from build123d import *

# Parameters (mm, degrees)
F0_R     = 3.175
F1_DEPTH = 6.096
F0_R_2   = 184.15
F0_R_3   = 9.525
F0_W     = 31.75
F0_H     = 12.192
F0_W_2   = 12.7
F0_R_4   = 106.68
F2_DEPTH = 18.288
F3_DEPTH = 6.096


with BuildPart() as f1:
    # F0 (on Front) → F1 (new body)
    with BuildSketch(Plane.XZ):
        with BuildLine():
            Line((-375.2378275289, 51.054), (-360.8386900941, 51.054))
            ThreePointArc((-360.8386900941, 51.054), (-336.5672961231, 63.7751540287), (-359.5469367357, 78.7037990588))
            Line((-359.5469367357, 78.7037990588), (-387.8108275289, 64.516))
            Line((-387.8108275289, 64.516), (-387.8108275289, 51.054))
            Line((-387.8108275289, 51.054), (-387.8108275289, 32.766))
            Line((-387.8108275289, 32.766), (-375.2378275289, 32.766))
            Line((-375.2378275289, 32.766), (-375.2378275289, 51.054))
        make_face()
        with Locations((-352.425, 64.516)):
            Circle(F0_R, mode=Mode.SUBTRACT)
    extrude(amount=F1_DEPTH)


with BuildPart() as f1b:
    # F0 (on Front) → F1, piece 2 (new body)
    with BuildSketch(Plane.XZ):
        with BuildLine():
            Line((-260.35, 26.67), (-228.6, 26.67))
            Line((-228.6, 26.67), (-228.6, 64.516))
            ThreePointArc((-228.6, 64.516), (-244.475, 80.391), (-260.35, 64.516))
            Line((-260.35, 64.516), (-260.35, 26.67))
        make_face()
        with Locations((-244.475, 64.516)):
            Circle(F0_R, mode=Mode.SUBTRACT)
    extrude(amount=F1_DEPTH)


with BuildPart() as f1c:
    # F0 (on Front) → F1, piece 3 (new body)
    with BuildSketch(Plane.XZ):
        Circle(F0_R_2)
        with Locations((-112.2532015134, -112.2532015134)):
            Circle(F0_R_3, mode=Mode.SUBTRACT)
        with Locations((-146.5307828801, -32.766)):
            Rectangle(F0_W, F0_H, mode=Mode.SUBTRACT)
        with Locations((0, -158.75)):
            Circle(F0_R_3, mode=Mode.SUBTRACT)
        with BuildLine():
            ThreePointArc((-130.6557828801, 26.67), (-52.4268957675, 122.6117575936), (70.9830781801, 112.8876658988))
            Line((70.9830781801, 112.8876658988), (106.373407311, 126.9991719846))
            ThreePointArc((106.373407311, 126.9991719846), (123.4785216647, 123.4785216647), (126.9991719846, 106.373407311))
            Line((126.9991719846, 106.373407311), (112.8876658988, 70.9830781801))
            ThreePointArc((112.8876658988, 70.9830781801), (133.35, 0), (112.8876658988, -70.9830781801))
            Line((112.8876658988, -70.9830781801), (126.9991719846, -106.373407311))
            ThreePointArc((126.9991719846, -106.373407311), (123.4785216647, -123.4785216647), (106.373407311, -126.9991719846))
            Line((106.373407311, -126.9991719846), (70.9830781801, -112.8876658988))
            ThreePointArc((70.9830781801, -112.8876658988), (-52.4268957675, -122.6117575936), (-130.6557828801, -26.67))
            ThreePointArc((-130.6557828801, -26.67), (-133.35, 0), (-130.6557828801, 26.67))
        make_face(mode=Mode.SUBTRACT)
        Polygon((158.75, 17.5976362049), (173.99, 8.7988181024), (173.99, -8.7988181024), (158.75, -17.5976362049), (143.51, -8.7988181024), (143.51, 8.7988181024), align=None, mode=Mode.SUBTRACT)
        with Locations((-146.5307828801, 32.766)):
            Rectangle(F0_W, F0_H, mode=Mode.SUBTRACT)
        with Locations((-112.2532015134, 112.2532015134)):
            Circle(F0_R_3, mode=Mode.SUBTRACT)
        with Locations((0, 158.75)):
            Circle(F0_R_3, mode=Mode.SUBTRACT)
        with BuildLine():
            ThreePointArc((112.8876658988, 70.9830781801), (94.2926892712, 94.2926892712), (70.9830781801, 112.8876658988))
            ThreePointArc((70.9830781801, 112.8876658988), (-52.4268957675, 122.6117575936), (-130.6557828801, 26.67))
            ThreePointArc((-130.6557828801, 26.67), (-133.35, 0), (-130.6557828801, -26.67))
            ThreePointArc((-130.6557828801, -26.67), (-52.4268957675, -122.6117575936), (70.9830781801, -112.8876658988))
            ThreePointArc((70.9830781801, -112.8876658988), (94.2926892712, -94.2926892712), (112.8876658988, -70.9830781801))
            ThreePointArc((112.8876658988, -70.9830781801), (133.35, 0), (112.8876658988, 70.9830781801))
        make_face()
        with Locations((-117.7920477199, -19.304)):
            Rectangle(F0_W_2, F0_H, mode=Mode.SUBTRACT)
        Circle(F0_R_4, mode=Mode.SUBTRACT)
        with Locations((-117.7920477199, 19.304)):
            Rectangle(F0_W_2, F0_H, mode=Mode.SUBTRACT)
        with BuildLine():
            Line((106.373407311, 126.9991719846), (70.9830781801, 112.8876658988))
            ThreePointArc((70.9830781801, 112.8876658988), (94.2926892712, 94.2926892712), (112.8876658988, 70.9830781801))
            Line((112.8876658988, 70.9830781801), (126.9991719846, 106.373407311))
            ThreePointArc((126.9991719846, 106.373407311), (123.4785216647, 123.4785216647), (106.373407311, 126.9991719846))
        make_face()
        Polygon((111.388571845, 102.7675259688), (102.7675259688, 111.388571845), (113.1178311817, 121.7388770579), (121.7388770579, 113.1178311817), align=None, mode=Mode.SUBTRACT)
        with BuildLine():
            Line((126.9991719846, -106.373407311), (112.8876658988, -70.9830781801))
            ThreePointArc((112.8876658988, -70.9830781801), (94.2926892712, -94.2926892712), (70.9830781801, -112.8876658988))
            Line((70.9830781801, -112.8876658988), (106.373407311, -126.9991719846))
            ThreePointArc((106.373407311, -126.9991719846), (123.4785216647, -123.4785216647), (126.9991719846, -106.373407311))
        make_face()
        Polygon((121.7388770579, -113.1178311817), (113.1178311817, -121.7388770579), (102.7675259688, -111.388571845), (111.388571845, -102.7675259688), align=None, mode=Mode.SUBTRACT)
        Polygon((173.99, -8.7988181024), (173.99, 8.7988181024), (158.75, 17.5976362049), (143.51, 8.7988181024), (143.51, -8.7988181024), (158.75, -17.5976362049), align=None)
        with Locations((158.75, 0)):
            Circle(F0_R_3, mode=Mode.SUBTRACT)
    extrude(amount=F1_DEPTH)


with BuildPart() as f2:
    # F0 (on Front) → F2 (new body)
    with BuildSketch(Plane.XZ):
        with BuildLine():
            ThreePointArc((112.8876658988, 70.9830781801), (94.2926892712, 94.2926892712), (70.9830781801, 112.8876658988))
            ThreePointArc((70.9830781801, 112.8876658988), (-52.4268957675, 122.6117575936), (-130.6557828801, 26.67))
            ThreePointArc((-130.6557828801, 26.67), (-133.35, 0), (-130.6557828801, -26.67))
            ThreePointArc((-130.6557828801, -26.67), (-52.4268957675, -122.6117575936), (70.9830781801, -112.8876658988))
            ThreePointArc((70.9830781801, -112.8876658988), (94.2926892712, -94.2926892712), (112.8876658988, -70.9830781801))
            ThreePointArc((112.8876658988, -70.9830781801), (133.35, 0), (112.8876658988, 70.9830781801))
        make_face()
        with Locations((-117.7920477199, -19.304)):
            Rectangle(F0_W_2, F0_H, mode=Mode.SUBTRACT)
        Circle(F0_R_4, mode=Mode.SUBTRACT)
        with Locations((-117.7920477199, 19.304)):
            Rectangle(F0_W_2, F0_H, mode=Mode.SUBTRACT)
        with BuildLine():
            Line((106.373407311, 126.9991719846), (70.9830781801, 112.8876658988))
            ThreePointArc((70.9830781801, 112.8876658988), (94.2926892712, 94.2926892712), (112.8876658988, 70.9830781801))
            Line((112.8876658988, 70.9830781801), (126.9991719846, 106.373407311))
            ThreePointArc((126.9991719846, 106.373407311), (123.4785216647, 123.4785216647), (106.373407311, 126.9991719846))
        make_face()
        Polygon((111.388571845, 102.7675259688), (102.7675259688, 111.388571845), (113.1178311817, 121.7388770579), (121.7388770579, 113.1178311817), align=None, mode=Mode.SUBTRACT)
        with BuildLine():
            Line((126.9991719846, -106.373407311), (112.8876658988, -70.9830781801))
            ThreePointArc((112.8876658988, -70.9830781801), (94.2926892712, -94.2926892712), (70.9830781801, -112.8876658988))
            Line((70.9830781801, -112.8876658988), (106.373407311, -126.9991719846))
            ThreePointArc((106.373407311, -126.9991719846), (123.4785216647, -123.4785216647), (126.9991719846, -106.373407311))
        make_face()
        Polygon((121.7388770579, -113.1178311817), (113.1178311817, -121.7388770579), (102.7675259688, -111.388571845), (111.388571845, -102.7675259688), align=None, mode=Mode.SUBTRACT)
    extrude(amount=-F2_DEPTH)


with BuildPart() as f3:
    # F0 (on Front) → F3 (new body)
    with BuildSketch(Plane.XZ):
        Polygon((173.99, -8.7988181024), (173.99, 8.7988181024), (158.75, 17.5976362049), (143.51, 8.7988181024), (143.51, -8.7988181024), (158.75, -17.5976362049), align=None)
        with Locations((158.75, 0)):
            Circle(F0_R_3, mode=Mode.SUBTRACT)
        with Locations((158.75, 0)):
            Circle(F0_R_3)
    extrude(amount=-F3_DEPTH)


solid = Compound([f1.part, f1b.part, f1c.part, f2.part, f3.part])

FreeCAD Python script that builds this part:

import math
import FreeCAD as App
import Part
import Sketcher
from FreeCAD import Vector
Q = App.Units.Quantity


def add_polygon(sketch, points):
    """Adds a closed chain of lines whose ends are joined by coincident constraints."""
    first, n = sketch.GeometryCount, len(points)
    for a, b in zip(points, points[1:] + points[:1]):
        sketch.addGeometry(Part.LineSegment(App.Vector(*a, 0), App.Vector(*b, 0)), False)
    for i in range(n):
        sketch.addConstraint(Sketcher.Constraint("Coincident", first + i, 2, first + (i + 1) % n, 1))

doc = App.newDocument("Part")
body = doc.addObject("PartDesign::Body", "Body")

# Sketch on XZ plane
sketch1 = body.newObject("Sketcher::SketchObject", "Sketch")
sketch1.AttachmentSupport = (doc.getObject("XZ_Plane"), [""])
sketch1.MapMode = "FlatFace"
sketch1.addGeometry(Part.LineSegment(Vector(-375.237828, 51.054, 0), Vector(-360.83869, 51.054, 0)), False)
sketch1.addGeometry(Part.ArcOfCircle(Part.Circle(Vector(-352.425, 64.516, 0), Vector(0, 0, 1), 15.875), math.radians(-122.0052), math.radians(116.65556)), False)
sketch1.addGeometry(Part.LineSegment(Vector(-359.546937, 78.703799, 0), Vector(-387.810828, 64.516, 0)), False)
sketch1.addGeometry(Part.LineSegment(Vector(-387.810828, 64.516, 0), Vector(-387.810828, 32.766, 0)), False)
sketch1.addGeometry(Part.LineSegment(Vector(-387.810828, 32.766, 0), Vector(-375.237828, 32.766, 0)), False)
sketch1.addGeometry(Part.LineSegment(Vector(-375.237828, 32.766, 0), Vector(-375.237828, 51.054, 0)), False)
sketch1.addGeometry(Part.Circle(Vector(-352.425, 64.516, 0), Vector(0, 0, 1), 3.175), False)
sketch1.addConstraint(Sketcher.Constraint("Coincident", 0, 2, 1, 1))
sketch1.addConstraint(Sketcher.Constraint("Tangent", 1, 2, 2, 1))
sketch1.addConstraint(Sketcher.Constraint("Coincident", 2, 2, 3, 1))
sketch1.addConstraint(Sketcher.Constraint("Coincident", 3, 2, 4, 1))
sketch1.addConstraint(Sketcher.Constraint("Coincident", 4, 2, 5, 1))
sketch1.addConstraint(Sketcher.Constraint("Coincident", 5, 2, 0, 1))
sketch1.addConstraint(Sketcher.Constraint("Horizontal", 0))
sketch1.addConstraint(Sketcher.Constraint("Vertical", 3))
sketch1.addConstraint(Sketcher.Constraint("Horizontal", 4))
sketch1.addConstraint(Sketcher.Constraint("Vertical", 5))
sketch1.addConstraint(Sketcher.Constraint("Coincident", 6, 3, 1, 3))
sketch1.addConstraint(Sketcher.Constraint("Horizontal", 6, 3, 2, 2))
sketch1.addConstraint(Sketcher.Constraint("Diameter", 6, Q("0.25 in")))
sketch1.addConstraint(Sketcher.Constraint("Radius", 1, Q("0.625 in")))
sketch1.addConstraint(Sketcher.Constraint("DistanceY", 3, 2, 3, 1, Q("1.25 in")))
sketch1.addConstraint(Sketcher.Constraint("DistanceY", 5, 1, 5, 2, Q("0.72 in")))
sketch1.addConstraint(Sketcher.Constraint("DistanceX", 4, 1, 4, 2, Q("0.495 in")))
sketch1.addConstraint(Sketcher.Constraint("DistanceY", -1, 1, 1, 3, Q("2.54 in")))
sketch1.addConstraint(Sketcher.Constraint("DistanceX", 1, 3, -1, 1, Q("13.875 in")))
sketch1.addConstraint(Sketcher.Constraint("DistanceY", -1, 1, 1, 2, Q("78.703799 mm")))
pad1 = body.newObject("PartDesign::Pad", "Pad")
pad1.Profile = sketch1
pad1.Length = Q("0.24 in")
body2 = doc.addObject("PartDesign::Body", "Body001")

# Sketch on XZ plane
sketch2 = body2.newObject("Sketcher::SketchObject", "Sketch001")
sketch2.AttachmentSupport = (doc.getObject("XZ_Plane001"), [""])
sketch2.MapMode = "FlatFace"
sketch2.addGeometry(Part.LineSegment(Vector(-260.35, 26.67, 0), Vector(-228.6, 26.67, 0)), False)
sketch2.addGeometry(Part.LineSegment(Vector(-228.6, 26.67, 0), Vector(-228.6, 64.516, 0)), False)
sketch2.addGeometry(Part.ArcOfCircle(Part.Circle(Vector(-244.475, 64.516, 0), Vector(0, 0, 1), 15.875), math.radians(0), math.radians(180)), False)
sketch2.addGeometry(Part.LineSegment(Vector(-260.35, 64.516, 0), Vector(-260.35, 26.67, 0)), False)
sketch2.addGeometry(Part.Circle(Vector(-244.475, 64.516, 0), Vector(0, 0, 1), 3.175), False)
sketch2.addConstraint(Sketcher.Constraint("Coincident", 0, 2, 1, 1))
sketch2.addConstraint(Sketcher.Constraint("Tangent", 1, 2, 2, 1))
sketch2.addConstraint(Sketcher.Constraint("Tangent", 2, 2, 3, 1))
sketch2.addConstraint(Sketcher.Constraint("Coincident", 3, 2, 0, 1))
sketch2.addConstraint(Sketcher.Constraint("Horizontal", 0))
sketch2.addConstraint(Sketcher.Constraint("Vertical", 1))
sketch2.addConstraint(Sketcher.Constraint("Vertical", 3))
sketch2.addConstraint(Sketcher.Constraint("Coincident", 4, 3, 2, 3))
sketch2.addConstraint(Sketcher.Constraint("Diameter", 4, Q("0.25 in")))
sketch2.addConstraint(Sketcher.Constraint("DistanceX", 0, 2, -1, 1, Q("9 in")))
sketch2.addConstraint(Sketcher.Constraint("Radius", 2, Q("0.625 in")))
sketch2.addConstraint(Sketcher.Constraint("DistanceY", 1, 1, 1, 2, Q("1.49 in")))
sketch2.addConstraint(Sketcher.Constraint("DistanceY", -1, 1, 2, 3, Q("2.54 in")))
pad2 = body2.newObject("PartDesign::Pad", "Pad001")
pad2.Profile = sketch2
pad2.Length = Q("0.24 in")
body3 = doc.addObject("PartDesign::Body", "Body002")

# Sketch on XZ plane
sketch3 = body3.newObject("Sketcher::SketchObject", "Sketch002")
sketch3.AttachmentSupport = (doc.getObject("XZ_Plane002"), [""])
sketch3.MapMode = "FlatFace"
sketch3.addGeometry(Part.Circle(Vector(0, 0, 0), Vector(0, 0, 1), 184.15), False)  # 0
sketch3.addGeometry(Part.Circle(Vector(-112.253202, -112.253202, 0), Vector(0, 0, 1), 9.525), False)  # 1
sketch3.addGeometry(Part.Circle(Vector(0, -158.75, 0), Vector(0, 0, 1), 9.525), False)  # 2
add_polygon(sketch3, [(-130.655783, -38.862), (-162.405783, -38.862), (-162.405783, -26.67), (-130.655783, -26.67)])  # lines 3-6
add_polygon(sketch3, [(-111.442048, -25.4), (-124.142048, -25.4), (-124.142048, -13.208), (-111.442048, -13.208)])  # lines 7-10
sketch3.addGeometry(Part.Circle(Vector(0, 0, 0), Vector(0, 0, 1), 106.68), False)  # 11
add_polygon(sketch3, [(111.388572, -102.767526), (121.738877, -113.117831), (113.117831, -121.738877), (102.767526, -111.388572)])  # lines 12-15
add_polygon(sketch3, [(-130.655783, 38.862), (-130.655783, 26.67), (-162.405783, 26.67), (-162.405783, 38.862)])  # lines 16-19
add_polygon(sketch3, [(-111.442048, 13.208), (-124.142048, 13.208), (-124.142048, 25.4), (-111.442048, 25.4)])  # lines 20-23
sketch3.addGeometry(Part.Circle(Vector(-112.253202, 112.253202, 0), Vector(0, 0, 1), 9.525), False)  # 24
sketch3.addGeometry(Part.Circle(Vector(0, 158.75, 0), Vector(0, 0, 1), 9.525), False)  # 25
sketch3.addGeometry(Part.Circle(Vector(158.75, 0, 0), Vector(0, 0, 1), 9.525), False)  # 26
add_polygon(sketch3, [(121.738877, 113.117831), (111.388572, 102.767526), (102.767526, 111.388572), (113.117831, 121.738877)])  # lines 27-30
sketch3.addConstraint(Sketcher.Constraint("Horizontal", 3))
sketch3.addConstraint(Sketcher.Constraint("Vertical", 4))
sketch3.addConstraint(Sketcher.Constraint("Horizontal", 5))
sketch3.addConstraint(Sketcher.Constraint("Vertical", 6))
sketch3.addConstraint(Sketcher.Constraint("Horizontal", 7))
sketch3.addConstraint(Sketcher.Constraint("Vertical", 8))
sketch3.addConstraint(Sketcher.Constraint("Horizontal", 9))
sketch3.addConstraint(Sketcher.Constraint("Vertical", 10))
sketch3.addConstraint(Sketcher.Constraint("Vertical", 16))
sketch3.addConstraint(Sketcher.Constraint("Horizontal", 17))
sketch3.addConstraint(Sketcher.Constraint("Vertical", 18))
sketch3.addConstraint(Sketcher.Constraint("Horizontal", 19))
sketch3.addConstraint(Sketcher.Constraint("Horizontal", 20))
sketch3.addConstraint(Sketcher.Constraint("Vertical", 21))
sketch3.addConstraint(Sketcher.Constraint("Horizontal", 22))
sketch3.addConstraint(Sketcher.Constraint("Vertical", 23))
sketch3.addConstraint(Sketcher.Constraint("Coincident", 0, 3, -1, 1))
sketch3.addConstraint(Sketcher.Constraint("Coincident", 11, 3, -1, 1))
sketch3.addConstraint(Sketcher.Constraint("Equal", 1, 2))
sketch3.addConstraint(Sketcher.Constraint("Equal", 2, 24))
sketch3.addConstraint(Sketcher.Constraint("Equal", 24, 25))
sketch3.addConstraint(Sketcher.Constraint("Equal", 25, 26))
sketch3.addConstraint(Sketcher.Constraint("Symmetric", 2, 3, 25, 3, -1, 1))
sketch3.addConstraint(Sketcher.Constraint("Symmetric", 1, 3, 24, 3, -1))
sketch3.addConstraint(Sketcher.Constraint("Symmetric", 5, 2, 16, 2, -1))
sketch3.addConstraint(Sketcher.Constraint("Symmetric", 3, 2, 18, 2, -1))
sketch3.addConstraint(Sketcher.Constraint("Symmetric", 8, 2, 20, 2, -1))
sketch3.addConstraint(Sketcher.Constraint("Symmetric", 10, 2, 22, 2, -1))
sketch3.addConstraint(Sketcher.Constraint("Symmetric", 15, 2, 27, 2, -1))
sketch3.addConstraint(Sketcher.Constraint("Symmetric", 14, 2, 28, 2, -1))
sketch3.addConstraint(Sketcher.Constraint("Symmetric", 13, 2, 29, 2, -1))
sketch3.addConstraint(Sketcher.Constraint("Symmetric", 12, 2, 30, 2, -1))
sketch3.addConstraint(Sketcher.Constraint("PointOnObject", 2, 3, -2))
sketch3.addConstraint(Sketcher.Constraint("PointOnObject", 26, 3, -1))
sketch3.addConstraint(Sketcher.Constraint("Perpendicular", 12, 13))
sketch3.addConstraint(Sketcher.Constraint("Perpendicular", 13, 14))
sketch3.addConstraint(Sketcher.Constraint("Perpendicular", 14, 15))
sketch3.addConstraint(Sketcher.Constraint("Parallel", 15, 27))
sketch3.addConstraint(Sketcher.Constraint("Equal", 6, 8))
sketch3.addConstraint(Sketcher.Constraint("Diameter", 0, Q("14.5 in")))
sketch3.addConstraint(Sketcher.Constraint("Diameter", 11, Q("8.4 in")))
sketch3.addConstraint(Sketcher.Constraint("Diameter", 1, Q("0.75 in")))
sketch3.addConstraint(Sketcher.Constraint("DistanceX", 7, 2, 7, 1, Q("0.5 in")))
sketch3.addConstraint(Sketcher.Constraint("DistanceY", 7, 2, -1, 1, Q("1 in")))
sketch3.addConstraint(Sketcher.Constraint("DistanceX", 3, 2, 3, 1, Q("1.25 in")))
sketch3.addConstraint(Sketcher.Constraint("DistanceY", 4, 1, 4, 2, Q("0.48 in")))
sketch3.addConstraint(Sketcher.Constraint("DistanceY", 2, 3, 25, 3, Q("12.5 in")))
sketch3.addConstraint(Sketcher.Constraint("DistanceY", 5, 2, 16, 2, Q("2.1 in")))
sketch3.addConstraint(Sketcher.Constraint("Distance", 13, Q("0.48 in")))
sketch3.addConstraint(Sketcher.Constraint("DistanceX", -1, 1, 26, 3, Q("6.25 in")))
sketch3.addConstraint(Sketcher.Constraint("DistanceX", 1, 3, -1, 1, Q("112.253202 mm")))
sketch3.addConstraint(Sketcher.Constraint("DistanceY", 1, 3, -1, 1, Q("112.253202 mm")))
sketch3.addConstraint(Sketcher.Constraint("DistanceY", 12, 2, -1, 1, Q("113.117831 mm")))
sketch3.addConstraint(Sketcher.Constraint("DistanceX", -1, 1, 13, 2, Q("113.117831 mm")))
sketch3.addConstraint(Sketcher.Constraint("DistanceY", 14, 2, -1, 1, Q("111.388572 mm")))
sketch3.addConstraint(Sketcher.Constraint("DistanceX", 3, 2, 1, 3, Q("50.152581 mm")))
sketch3.addConstraint(Sketcher.Constraint("DistanceX", 7, 2, -1, 1, Q("124.142048 mm")))
pad3 = body3.newObject("PartDesign::Pad", "Pad002")
pad3.Profile = sketch3
pad3.Length = Q("0.24 in")
body4 = doc.addObject("PartDesign::Body", "Body003")

# Sketch on XZ plane
sketch4 = body4.newObject("Sketcher::SketchObject", "Sketch003")
sketch4.AttachmentSupport = (doc.getObject("XZ_Plane003"), [""])
sketch4.MapMode = "FlatFace"
sketch4.addGeometry(Part.ArcOfCircle(Part.Circle(Vector(0, 0, 0), Vector(0, 0, 1), 133.35), math.radians(-32.161432), math.radians(32.161432)), False)  # 0
sketch4.addGeometry(Part.LineSegment(Vector(112.887666, 70.983078, 0), Vector(126.999172, 106.373407, 0)), False)  # 1
sketch4.addGeometry(Part.ArcOfCircle(Part.Circle(Vector(112.253202, 112.253202, 0), Vector(0, 0, 1), 15.875), math.radians(-21.7391), math.radians(111.7391)), False)  # 2
sketch4.addGeometry(Part.LineSegment(Vector(106.373407, 126.999172, 0), Vector(70.983078, 112.887666, 0)), False)  # 3
sketch4.addGeometry(Part.ArcOfCircle(Part.Circle(Vector(0, 0, 0), Vector(0, 0, 1), 133.35), math.radians(57.838568), math.radians(168.463041)), False)  # 4
sketch4.addGeometry(Part.ArcOfCircle(Part.Circle(Vector(0, 0, 0), Vector(0, 0, 1), 133.35), math.radians(168.463041), math.radians(191.536959)), False)  # 5
sketch4.addGeometry(Part.ArcOfCircle(Part.Circle(Vector(0, 0, 0), Vector(0, 0, 1), 133.35), math.radians(-168.463041), math.radians(-57.838568)), False)  # 6
sketch4.addGeometry(Part.LineSegment(Vector(70.983078, -112.887666, 0), Vector(106.373407, -126.999172, 0)), False)  # 7
sketch4.addGeometry(Part.ArcOfCircle(Part.Circle(Vector(112.253202, -112.253202, 0), Vector(0, 0, 1), 15.875), math.radians(-111.7391), math.radians(21.7391)), False)  # 8
sketch4.addGeometry(Part.LineSegment(Vector(126.999172, -106.373407, 0), Vector(112.887666, -70.983078, 0)), False)  # 9
add_polygon(sketch4, [(-111.442048, -25.4), (-124.142048, -25.4), (-124.142048, -13.208), (-111.442048, -13.208)])  # lines 10-13
add_polygon(sketch4, [(111.388572, -102.767526), (121.738877, -113.117831), (113.117831, -121.738877), (102.767526, -111.388572)])  # lines 14-17
add_polygon(sketch4, [(-111.442048, 13.208), (-124.142048, 13.208), (-124.142048, 25.4), (-111.442048, 25.4)])  # lines 18-21
sketch4.addGeometry(Part.Circle(Vector(0, 0, 0), Vector(0, 0, 1), 106.68), False)  # 22
add_polygon(sketch4, [(121.738877, 113.117831), (111.388572, 102.767526), (102.767526, 111.388572), (113.117831, 121.738877)])  # lines 23-26
sketch4.addConstraint(Sketcher.Constraint("Coincident", 0, 2, 1, 1))
sketch4.addConstraint(Sketcher.Constraint("Tangent", 1, 2, 2, 1))
sketch4.addConstraint(Sketcher.Constraint("Tangent", 2, 2, 3, 1))
sketch4.addConstraint(Sketcher.Constraint("Coincident", 3, 2, 4, 1))
sketch4.addConstraint(Sketcher.Constraint("Tangent", 4, 2, 5, 1))
sketch4.addConstraint(Sketcher.Constraint("Tangent", 5, 2, 6, 1))
sketch4.addConstraint(Sketcher.Constraint("Coincident", 6, 2, 7, 1))
sketch4.addConstraint(Sketcher.Constraint("Tangent", 7, 2, 8, 1))
sketch4.addConstraint(Sketcher.Constraint("Tangent", 8, 2, 9, 1))
sketch4.addConstraint(Sketcher.Constraint("Coincident", 9, 2, 0, 1))
sketch4.addConstraint(Sketcher.Constraint("Horizontal", 10))
sketch4.addConstraint(Sketcher.Constraint("Vertical", 11))
sketch4.addConstraint(Sketcher.Constraint("Horizontal", 12))
sketch4.addConstraint(Sketcher.Constraint("Vertical", 13))
sketch4.addConstraint(Sketcher.Constraint("Horizontal", 18))
sketch4.addConstraint(Sketcher.Constraint("Vertical", 19))
sketch4.addConstraint(Sketcher.Constraint("Horizontal", 20))
sketch4.addConstraint(Sketcher.Constraint("Vertical", 21))
sketch4.addConstraint(Sketcher.Constraint("Coincident", 0, 3, -1, 1))
sketch4.addConstraint(Sketcher.Constraint("Coincident", 4, 3, -1, 1))
sketch4.addConstraint(Sketcher.Constraint("Coincident", 6, 3, -1, 1))
sketch4.addConstraint(Sketcher.Constraint("Coincident", 22, 3, -1, 1))
sketch4.addConstraint(Sketcher.Constraint("Equal", 0, 4))
sketch4.addConstraint(Sketcher.Constraint("Equal", 2, 8))
sketch4.addConstraint(Sketcher.Constraint("Symmetric", 2, 3, 8, 3, -1))
sketch4.addConstraint(Sketcher.Constraint("Symmetric", 11, 2, 18, 2, -1))
sketch4.addConstraint(Sketcher.Constraint("Symmetric", 13, 2, 20, 2, -1))
sketch4.addConstraint(Sketcher.Constraint("Symmetric", 17, 2, 23, 2, -1))
sketch4.addConstraint(Sketcher.Constraint("Symmetric", 16, 2, 24, 2, -1))
sketch4.addConstraint(Sketcher.Constraint("Symmetric", 15, 2, 25, 2, -1))
sketch4.addConstraint(Sketcher.Constraint("Symmetric", 14, 2, 26, 2, -1))
sketch4.addConstraint(Sketcher.Constraint("Perpendicular", 1, 7))
sketch4.addConstraint(Sketcher.Constraint("Perpendicular", 3, 9))
sketch4.addConstraint(Sketcher.Constraint("Perpendicular", 14, 15))
sketch4.addConstraint(Sketcher.Constraint("Perpendicular", 15, 16))
sketch4.addConstraint(Sketcher.Constraint("Perpendicular", 16, 17))
sketch4.addConstraint(Sketcher.Constraint("Parallel", 17, 23))
sketch4.addConstraint(Sketcher.Constraint("Vertical", 4, 2, 5, 2))
sketch4.addConstraint(Sketcher.Constraint("Vertical", 3, 2, 6, 2))
sketch4.addConstraint(Sketcher.Constraint("Equal", 1, 3))
sketch4.addConstraint(Sketcher.Constraint("Diameter", 22, Q("8.4 in")))
sketch4.addConstraint(Sketcher.Constraint("Radius", 0, Q("5.25 in")))
sketch4.addConstraint(Sketcher.Constraint("DistanceX", 10, 2, 10, 1, Q("0.5 in")))
sketch4.addConstraint(Sketcher.Constraint("DistanceY", 10, 2, -1, 1, Q("1 in")))
sketch4.addConstraint(Sketcher.Constraint("Radius", 2, Q("0.625 in")))
sketch4.addConstraint(Sketcher.Constraint("Distance", 1, Q("1.5 in")))
sketch4.addConstraint(Sketcher.Constraint("DistanceY", 11, 1, 11, 2, Q("0.48 in")))
sketch4.addConstraint(Sketcher.Constraint("DistanceY", 5, 2, 4, 2, Q("2.1 in")))
sketch4.addConstraint(Sketcher.Constraint("Distance", 15, Q("0.48 in")))
sketch4.addConstraint(Sketcher.Constraint("DistanceX", -1, 1, 2, 3, Q("112.253202 mm")))
sketch4.addConstraint(Sketcher.Constraint("DistanceX", 6, 2, 14, 2, Q("50.755799 mm")))
sketch4.addConstraint(Sketcher.Constraint("DistanceY", 7, 2, 16, 2, Q("15.6106 mm")))
sketch4.addConstraint(Sketcher.Constraint("DistanceX", 17, 2, 8, 2, Q("15.6106 mm")))
sketch4.addConstraint(Sketcher.Constraint("DistanceX", 10, 2, -1, 1, Q("124.142048 mm")))
pad4 = body4.newObject("PartDesign::Pad", "Pad003")
pad4.Profile = sketch4
pad4.Length = Q("0.72 in")
pad4.Reversed = True
body5 = doc.addObject("PartDesign::Body", "Body004")

# Sketch on XZ plane
sketch5 = body5.newObject("Sketcher::SketchObject", "Sketch004")
sketch5.AttachmentSupport = (doc.getObject("XZ_Plane004"), [""])
sketch5.MapMode = "FlatFace"
add_polygon(sketch5, [(173.99, -8.798818), (173.99, 8.798818), (158.75, 17.597636), (143.51, 8.798818), (143.51, -8.798818), (158.75, -17.597636)])  # lines 0-5
sketch5.addConstraint(Sketcher.Constraint("Vertical", 0))
sketch5.addConstraint(Sketcher.Constraint("Vertical", 3))
sketch5.addConstraint(Sketcher.Constraint("Symmetric", 1, 2, 4, 2, -1))
sketch5.addConstraint(Sketcher.Constraint("Parallel", 1, 4))
sketch5.addConstraint(Sketcher.Constraint("Parallel", 2, 5))
sketch5.addConstraint(Sketcher.Constraint("Horizontal", 0, 2, 2, 2))
sketch5.addConstraint(Sketcher.Constraint("Horizontal", 3, 2, 5, 2))
sketch5.addConstraint(Sketcher.Constraint("Angle", 1, Q("150 deg")))
sketch5.addConstraint(Sketcher.Constraint("DistanceX", 1, 2, 0, 2, Q("0.6 in")))
sketch5.addConstraint(Sketcher.Constraint("DistanceX", -1, 1, 0, 2, Q("6.85 in")))
sketch5.addConstraint(Sketcher.Constraint("DistanceY", 0, 1, 0, 2, Q("17.597636 mm")))
pad5 = body5.newObject("PartDesign::Pad", "Pad004")
pad5.Profile = sketch5
pad5.Length = Q("0.24 in")
pad5.Reversed = True

doc.recompute()
